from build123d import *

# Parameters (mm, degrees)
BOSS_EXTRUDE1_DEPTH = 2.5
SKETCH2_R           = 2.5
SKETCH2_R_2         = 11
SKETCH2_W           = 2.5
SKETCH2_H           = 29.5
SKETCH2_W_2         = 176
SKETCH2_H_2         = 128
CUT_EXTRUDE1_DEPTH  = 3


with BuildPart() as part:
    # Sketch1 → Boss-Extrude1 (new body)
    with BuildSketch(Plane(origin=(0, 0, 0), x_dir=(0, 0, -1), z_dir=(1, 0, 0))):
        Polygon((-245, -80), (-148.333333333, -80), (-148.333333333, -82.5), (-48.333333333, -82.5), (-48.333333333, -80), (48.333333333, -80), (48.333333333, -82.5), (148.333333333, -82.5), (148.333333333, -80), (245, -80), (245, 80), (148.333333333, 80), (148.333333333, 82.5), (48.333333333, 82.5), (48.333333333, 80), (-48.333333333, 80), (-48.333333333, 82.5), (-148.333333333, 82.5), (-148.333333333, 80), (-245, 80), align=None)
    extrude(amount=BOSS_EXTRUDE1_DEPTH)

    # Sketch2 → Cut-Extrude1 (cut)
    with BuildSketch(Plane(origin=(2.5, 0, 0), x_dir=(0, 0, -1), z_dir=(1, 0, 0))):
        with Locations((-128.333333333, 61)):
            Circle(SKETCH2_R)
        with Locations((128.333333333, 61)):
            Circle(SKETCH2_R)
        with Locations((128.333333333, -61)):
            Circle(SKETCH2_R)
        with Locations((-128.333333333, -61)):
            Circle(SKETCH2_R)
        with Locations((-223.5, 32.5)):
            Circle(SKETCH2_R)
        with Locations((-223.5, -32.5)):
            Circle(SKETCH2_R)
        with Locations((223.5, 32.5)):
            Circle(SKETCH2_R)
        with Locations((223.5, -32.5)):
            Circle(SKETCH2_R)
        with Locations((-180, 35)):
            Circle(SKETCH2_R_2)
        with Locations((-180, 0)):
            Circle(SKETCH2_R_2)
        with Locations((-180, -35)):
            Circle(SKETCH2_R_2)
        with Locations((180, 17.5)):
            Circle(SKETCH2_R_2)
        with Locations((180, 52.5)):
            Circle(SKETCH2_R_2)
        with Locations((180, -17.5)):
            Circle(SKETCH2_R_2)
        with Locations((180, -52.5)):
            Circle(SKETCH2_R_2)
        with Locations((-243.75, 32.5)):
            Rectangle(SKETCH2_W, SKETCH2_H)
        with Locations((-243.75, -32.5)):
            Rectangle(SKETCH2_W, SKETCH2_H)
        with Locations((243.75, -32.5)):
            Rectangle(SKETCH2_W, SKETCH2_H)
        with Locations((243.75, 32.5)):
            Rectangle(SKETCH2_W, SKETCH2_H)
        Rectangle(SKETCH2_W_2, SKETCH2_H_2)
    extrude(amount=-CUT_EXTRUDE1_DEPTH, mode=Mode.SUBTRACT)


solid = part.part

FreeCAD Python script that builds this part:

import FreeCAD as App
import Part
import Sketcher
Q = App.Units.Quantity

doc = App.newDocument("Part")
body = doc.addObject("PartDesign::Body", "Body")

# Sketch on YZ plane
sketch1 = body.newObject("Sketcher::SketchObject", "Sketch")
sketch1.AttachmentSupport = (doc.getObject("YZ_Plane"), [""])
sketch1.MapMode = "FlatFace"
sketch1.addGeometry([
    Part.LineSegment(App.Vector(-80, 245, 0), App.Vector(-80, 148.3, 0)),  # 0
    Part.LineSegment(App.Vector(-80, 148.3, 0), App.Vector(-82.5, 148.3, 0)),  # 1
    Part.LineSegment(App.Vector(-82.5, 148.3, 0), App.Vector(-82.5, 48.3, 0)),  # 2
    Part.LineSegment(App.Vector(-82.5, 48.3, 0), App.Vector(-80, 48.3, 0)),  # 3
    Part.LineSegment(App.Vector(-80, 48.3, 0), App.Vector(-80, -48.3, 0)),  # 4
    Part.LineSegment(App.Vector(-80, -48.3, 0), App.Vector(-82.5, -48.3, 0)),  # 5
    Part.LineSegment(App.Vector(-82.5, -48.3, 0), App.Vector(-82.5, -148.3, 0)),  # 6
    Part.LineSegment(App.Vector(-82.5, -148.3, 0), App.Vector(-80, -148.3, 0)),  # 7
    Part.LineSegment(App.Vector(-80, -148.3, 0), App.Vector(-80, -245, 0)),  # 8
    Part.LineSegment(App.Vector(-80, -245, 0), App.Vector(80, -245, 0)),  # 9
    Part.LineSegment(App.Vector(80, -245, 0), App.Vector(80, -148.3, 0)),  # 10
    Part.LineSegment(App.Vector(80, -148.3, 0), App.Vector(82.5, -148.3, 0)),  # 11
    Part.LineSegment(App.Vector(82.5, -148.3, 0), App.Vector(82.5, -48.3, 0)),  # 12
    Part.LineSegment(App.Vector(82.5, -48.3, 0), App.Vector(80, -48.3, 0)),  # 13
    Part.LineSegment(App.Vector(80, -48.3, 0), App.Vector(80, 48.3, 0)),  # 14
    Part.LineSegment(App.Vector(80, 48.3, 0), App.Vector(82.5, 48.3, 0)),  # 15
    Part.LineSegment(App.Vector(82.5, 48.3, 0), App.Vector(82.5, 148.3, 0)),  # 16
    Part.LineSegment(App.Vector(82.5, 148.3, 0), App.Vector(80, 148.3, 0)),  # 17
    Part.LineSegment(App.Vector(80, 148.3, 0), App.Vector(80, 245, 0)),  # 18
    Part.LineSegment(App.Vector(80, 245, 0), App.Vector(-80, 245, 0)),  # 19
], False)
sketch1.addConstraint([
    Sketcher.Constraint("Coincident", 0, 2, 1, 1),
    Sketcher.Constraint("Coincident", 1, 2, 2, 1),
    Sketcher.Constraint("Coincident", 2, 2, 3, 1),
    Sketcher.Constraint("Coincident", 3, 2, 4, 1),
    Sketcher.Constraint("Coincident", 4, 2, 5, 1),
    Sketcher.Constraint("Coincident", 5, 2, 6, 1),
    Sketcher.Constraint("Coincident", 6, 2, 7, 1),
    Sketcher.Constraint("Coincident", 7, 2, 8, 1),
    Sketcher.Constraint("Coincident", 8, 2, 9, 1),
    Sketcher.Constraint("Coincident", 9, 2, 10, 1),
    Sketcher.Constraint("Coincident", 10, 2, 11, 1),
    Sketcher.Constraint("Coincident", 11, 2, 12, 1),
    Sketcher.Constraint("Coincident", 12, 2, 13, 1),
    Sketcher.Constraint("Coincident", 13, 2, 14, 1),
    Sketcher.Constraint("Coincident", 14, 2, 15, 1),
    Sketcher.Constraint("Coincident", 15, 2, 16, 1),
    Sketcher.Constraint("Coincident", 16, 2, 17, 1),
    Sketcher.Constraint("Coincident", 17, 2, 18, 1),
    Sketcher.Constraint("Coincident", 18, 2, 19, 1),
    Sketcher.Constraint("Coincident", 19, 2, 0, 1),
    Sketcher.Constraint("Vertical", 0),
    Sketcher.Constraint("Horizontal", 1),
    Sketcher.Constraint("Vertical", 2),
    Sketcher.Constraint("Horizontal", 3),
    Sketcher.Constraint("Vertical", 4),
    Sketcher.Constraint("Horizontal", 5),
    Sketcher.Constraint("Vertical", 6),
    Sketcher.Constraint("Horizontal", 7),
    Sketcher.Constraint("Vertical", 8),
    Sketcher.Constraint("Horizontal", 9),
    Sketcher.Constraint("Vertical", 10),
    Sketcher.Constraint("Horizontal", 11),
    Sketcher.Constraint("Vertical", 12),
    Sketcher.Constraint("Horizontal", 13),
    Sketcher.Constraint("Vertical", 14),
    Sketcher.Constraint("Horizontal", 15),
    Sketcher.Constraint("Vertical", 16),
    Sketcher.Constraint("Horizontal", 17),
    Sketcher.Constraint("Vertical", 18),
    Sketcher.Constraint("Horizontal", 19),
    Sketcher.Constraint("Symmetric", 0, 2, 10, 2, -1, 1),
    Sketcher.Constraint("Symmetric", 2, 2, 12, 2, -1, 1),
    Sketcher.Constraint("Symmetric", 4, 2, 14, 2, -1, 1),
    Sketcher.Constraint("Symmetric", 6, 2, 16, 2, -1, 1),
    Sketcher.Constraint("Symmetric", 8, 2, 18, 2, -1, 1),
    Sketcher.Constraint("Symmetric", 7, 2, 10, 2, -2),
    Sketcher.Constraint("Symmetric", 5, 2, 12, 2, -2),
    Sketcher.Constraint("Vertical", 0, 2, 3, 2),
    Sketcher.Constraint("Equal", 0, 4),
    Sketcher.Constraint("DistanceX", 9, 1, 9, 2, Q("160 mm")),
    Sketcher.Constraint("DistanceY", 2, 2, 2, 1, Q("100 mm")),
    Sketcher.Constraint("DistanceX", 1, 2, 1, 1, Q("2.5 mm")),
    Sketcher.Constraint("DistanceY", 8, 2, -1, 1, Q("245 mm")),
])
pad1 = body.newObject("PartDesign::Pad", "Pad")
pad1.Profile = sketch1
pad1.Length = 2.5

# Sketch on YZ plane
sketch2 = body.newObject("Sketcher::SketchObject", "Sketch001")
sketch2.AttachmentSupport = (doc.getObject("YZ_Plane"), [""])
sketch2.MapMode = "FlatFace"
sketch2.AttachmentOffset = App.Placement(App.Vector(0, 0, 2.5), App.Rotation())
sketch2.addGeometry([
    Part.Circle(App.Vector(61, 128.3, 0), App.Vector(0, 0, 1), 2.5),  # 0
    Part.Circle(App.Vector(61, -128.3, 0), App.Vector(0, 0, 1), 2.5),  # 1
    Part.Circle(App.Vector(-61, -128.3, 0), App.Vector(0, 0, 1), 2.5),  # 2
    Part.Circle(App.Vector(-61, 128.3, 0), App.Vector(0, 0, 1), 2.5),  # 3
    Part.Circle(App.Vector(32.5, 223.5, 0), App.Vector(0, 0, 1), 2.5),  # 4
    Part.Circle(App.Vector(-32.5, 223.5, 0), App.Vector(0, 0, 1), 2.5),  # 5
    Part.Circle(App.Vector(32.5, -223.5, 0), App.Vector(0, 0, 1), 2.5),  # 6
    Part.Circle(App.Vector(-32.5, -223.5, 0), App.Vector(0, 0, 1), 2.5),  # 7
    Part.Circle(App.Vector(35, 180, 0), App.Vector(0, 0, 1), 11),  # 8
    Part.Circle(App.Vector(0, 180, 0), App.Vector(0, 0, 1), 11),  # 9
    Part.Circle(App.Vector(-35, 180, 0), App.Vector(0, 0, 1), 11),  # 10
    Part.Circle(App.Vector(17.5, -180, 0), App.Vector(0, 0, 1), 11),  # 11
    Part.Circle(App.Vector(52.5, -180, 0), App.Vector(0, 0, 1), 11),  # 12
    Part.Circle(App.Vector(-17.5, -180, 0), App.Vector(0, 0, 1), 11),  # 13
    Part.Circle(App.Vector(-52.5, -180, 0), App.Vector(0, 0, 1), 11),  # 14
    Part.LineSegment(App.Vector(47.2, 245, 0), App.Vector(17.8, 245, 0)),  # 15
    Part.LineSegment(App.Vector(17.8, 245, 0), App.Vector(17.8, 242.5, 0)),  # 16
    Part.LineSegment(App.Vector(17.8, 242.5, 0), App.Vector(47.2, 242.5, 0)),  # 17
    Part.LineSegment(App.Vector(47.2, 242.5, 0), App.Vector(47.2, 245, 0)),  # 18
    Part.LineSegment(App.Vector(-17.8, 245, 0), App.Vector(-47.2, 245, 0)),  # 19
    Part.LineSegment(App.Vector(-47.2, 245, 0), App.Vector(-47.2, 242.5, 0)),  # 20
    Part.LineSegment(App.Vector(-47.2, 242.5, 0), App.Vector(-17.8, 242.5, 0)),  # 21
    Part.LineSegment(App.Vector(-17.8, 242.5, 0), App.Vector(-17.8, 245, 0)),  # 22
    Part.LineSegment(App.Vector(-17.8, -242.5, 0), App.Vector(-47.2, -242.5, 0)),  # 23
    Part.LineSegment(App.Vector(-47.2, -242.5, 0), App.Vector(-47.2, -245, 0)),  # 24
    Part.LineSegment(App.Vector(-47.2, -245, 0), App.Vector(-17.8, -245, 0)),  # 25
    Part.LineSegment(App.Vector(-17.8, -245, 0), App.Vector(-17.8, -242.5, 0)),  # 26
    Part.LineSegment(App.Vector(47.2, -242.5, 0), App.Vector(17.8, -242.5, 0)),  # 27
    Part.LineSegment(App.Vector(17.8, -242.5, 0), App.Vector(17.8, -245, 0)),  # 28
    Part.LineSegment(App.Vector(17.8, -245, 0), App.Vector(47.2, -245, 0)),  # 29
    Part.LineSegment(App.Vector(47.2, -245, 0), App.Vector(47.2, -242.5, 0)),  # 30
    Part.LineSegment(App.Vector(64, 88, 0), App.Vector(-64, 88, 0)),  # 31
    Part.LineSegment(App.Vector(-64, 88, 0), App.Vector(-64, -88, 0)),  # 32
    Part.LineSegment(App.Vector(-64, -88, 0), App.Vector(64, -88, 0)),  # 33
    Part.LineSegment(App.Vector(64, -88, 0), App.Vector(64, 88, 0)),  # 34
], False)
sketch2.addConstraint([
    Sketcher.Constraint("Coincident", 15, 2, 16, 1),
    Sketcher.Constraint("Coincident", 16, 2, 17, 1),
    Sketcher.Constraint("Coincident", 17, 2, 18, 1),
    Sketcher.Constraint("Coincident", 18, 2, 15, 1),
    Sketcher.Constraint("Coincident", 19, 2, 20, 1),
    Sketcher.Constraint("Coincident", 20, 2, 21, 1),
    Sketcher.Constraint("Coincident", 21, 2, 22, 1),
    Sketcher.Constraint("Coincident", 22, 2, 19, 1),
    Sketcher.Constraint("Coincident", 23, 2, 24, 1),
    Sketcher.Constraint("Coincident", 24, 2, 25, 1),
    Sketcher.Constraint("Coincident", 25, 2, 26, 1),
    Sketcher.Constraint("Coincident", 26, 2, 23, 1),
    Sketcher.Constraint("Coincident", 27, 2, 28, 1),
    Sketcher.Constraint("Coincident", 28, 2, 29, 1),
    Sketcher.Constraint("Coincident", 29, 2, 30, 1),
    Sketcher.Constraint("Coincident", 30, 2, 27, 1),
    Sketcher.Constraint("Coincident", 31, 2, 32, 1),
    Sketcher.Constraint("Coincident", 32, 2, 33, 1),
    Sketcher.Constraint("Coincident", 33, 2, 34, 1),
    Sketcher.Constraint("Coincident", 34, 2, 31, 1),
    Sketcher.Constraint("Horizontal", 15),
    Sketcher.Constraint("Vertical", 16),
    Sketcher.Constraint("Horizontal", 17),
    Sketcher.Constraint("Vertical", 18),
    Sketcher.Constraint("Horizontal", 19),
    Sketcher.Constraint("Vertical", 20),
    Sketcher.Constraint("Horizontal", 21),
    Sketcher.Constraint("Vertical", 22),
    Sketcher.Constraint("Horizontal", 23),
    Sketcher.Constraint("Vertical", 24),
    Sketcher.Constraint("Horizontal", 25),
    Sketcher.Constraint("Vertical", 26),
    Sketcher.Constraint("Horizontal", 27),
    Sketcher.Constraint("Vertical", 28),
    Sketcher.Constraint("Horizontal", 29),
    Sketcher.Constraint("Vertical", 30),
    Sketcher.Constraint("Horizontal", 31),
    Sketcher.Constraint("Vertical", 32),
    Sketcher.Constraint("Horizontal", 33),
    Sketcher.Constraint("Vertical", 34),
    Sketcher.Constraint("Equal", 0, 1),
    Sketcher.Constraint("Equal", 1, 2),
    Sketcher.Constraint("Equal", 2, 3),
    Sketcher.Constraint("Equal", 3, 4),
    Sketcher.Constraint("Equal", 4, 5),
    Sketcher.Constraint("Equal", 5, 6),
    Sketcher.Constraint("Equal", 6, 7),
    Sketcher.Constraint("Equal", 8, 9),
    Sketcher.Constraint("Equal", 9, 10),
    Sketcher.Constraint("Equal", 10, 11),
    Sketcher.Constraint("Equal", 11, 12),
    Sketcher.Constraint("Equal", 12, 13),
    Sketcher.Constraint("Equal", 13, 14),
    Sketcher.Constraint("Symmetric", 0, 3, 2, 3, -1, 1),
    Sketcher.Constraint("Symmetric", 1, 3, 3, 3, -1, 1),
    Sketcher.Constraint("Symmetric", 5, 3, 6, 3, -1, 1),
    Sketcher.Constraint("Symmetric", 4, 3, 7, 3, -1, 1),
    Sketcher.Constraint("Symmetric", 17, 2, 23, 2, -1, 1),
    Sketcher.Constraint("Symmetric", 15, 2, 25, 2, -1, 1),
    Sketcher.Constraint("Symmetric", 21, 2, 27, 2, -1, 1),
    Sketcher.Constraint("Symmetric", 19, 2, 29, 2, -1, 1),
    Sketcher.Constraint("Symmetric", 31, 2, 33, 2, -1, 1),
    Sketcher.Constraint("Symmetric", 1, 3, 2, 3, -2),
    Sketcher.Constraint("Symmetric", 4, 3, 5, 3, -2),
    Sketcher.Constraint("Symmetric", 8, 3, 10, 3, -2),
    Sketcher.Constraint("Symmetric", 11, 3, 13, 3, -2),
    Sketcher.Constraint("Symmetric", 12, 3, 14, 3, -2),
    Sketcher.Constraint("Symmetric", 18, 2, 19, 2, -2),
    Sketcher.Constraint("Symmetric", 16, 2, 21, 2, -2),
    Sketcher.Constraint("PointOnObject", 9, 3, -2),
    Sketcher.Constraint("Horizontal", 8, 3, 9, 3),
    Sketcher.Constraint("Horizontal", 11, 3, 12, 3),
    Sketcher.Constraint("Diameter", 0, Q("5 mm")),
    Sketcher.Constraint("Diameter", 8, Q("22 mm")),
    Sketcher.Constraint("DistanceX", 31, 2, 31, 1, Q("128 mm")),
    Sketcher.Constraint("DistanceY", 32, 2, 32, 1, Q("176 mm")),
    Sketcher.Constraint("DistanceX", 15, 2, 15, 1, Q("29.5 mm")),
    Sketcher.Constraint("DistanceY", 16, 2, 16, 1, Q("2.5 mm")),
    Sketcher.Constraint("DistanceX", -1, 1, 0, 3, Q("61 mm")),
    Sketcher.Constraint("DistanceX", -1, 1, 8, 3, Q("35 mm")),
    Sketcher.Constraint("DistanceY", -1, 1, 8, 3, Q("180 mm")),
    Sketcher.Constraint("DistanceY", 11, 3, -1, 1, Q("180 mm")),
    Sketcher.Constraint("DistanceY", -1, 1, 15, 2, Q("245 mm")),
    Sketcher.Constraint("DistanceX", 5, 3, 4, 3, Q("65 mm")),
    Sketcher.Constraint("DistanceY", 6, 3, 4, 3, Q("447 mm")),
    Sketcher.Constraint("DistanceX", 11, 3, 6, 3, Q("15 mm")),
    Sketcher.Constraint("DistanceX", 11, 3, 12, 3, Q("35 mm")),
    Sketcher.Constraint("DistanceX", 19, 2, 15, 2, Q("65 mm")),
    Sketcher.Constraint("DistanceY", -1, 1, 0, 3, Q("128.333333 mm")),
])
pocket1 = body.newObject("PartDesign::Pocket", "Pocket")
pocket1.Profile = sketch2
pocket1.Length = 3

doc.recompute()
